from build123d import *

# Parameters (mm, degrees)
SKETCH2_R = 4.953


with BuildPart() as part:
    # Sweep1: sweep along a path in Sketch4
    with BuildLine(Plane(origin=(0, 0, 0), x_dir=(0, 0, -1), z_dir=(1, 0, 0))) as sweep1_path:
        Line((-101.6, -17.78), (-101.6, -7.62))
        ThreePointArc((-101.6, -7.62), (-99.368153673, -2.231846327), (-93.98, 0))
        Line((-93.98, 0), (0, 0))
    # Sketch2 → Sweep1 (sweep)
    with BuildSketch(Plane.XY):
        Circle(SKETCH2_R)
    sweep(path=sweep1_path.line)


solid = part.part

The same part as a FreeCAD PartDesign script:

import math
import FreeCAD as App
import Part
import Sketcher
from FreeCAD import Vector
Q = App.Units.Quantity

doc = App.newDocument("Part")
body = doc.addObject("PartDesign::Body", "Body")

# Sketch on XY plane
sketch1 = body.newObject("Sketcher::SketchObject", "Sketch")
sketch1.AttachmentSupport = (doc.getObject("XY_Plane"), [""])
sketch1.MapMode = "FlatFace"
sketch1.addGeometry(Part.Circle(Vector(0, 0, 0), Vector(0, 0, 1), 5), False)
sketch1.addConstraint(Sketcher.Constraint("Coincident", 0, 3, -1, 1))
sketch1.addConstraint(Sketcher.Constraint("Diameter", 0, Q("0.39 in")))

# Sketch on YZ plane
sketch2 = body.newObject("Sketcher::SketchObject", "Sketch001")
sketch2.AttachmentSupport = (doc.getObject("YZ_Plane"), [""])
sketch2.MapMode = "FlatFace"
sketch2.addGeometry(Part.LineSegment(Vector(-18, 102, 0), Vector(-8, 102, 0)), False)
sketch2.addGeometry(Part.ArcOfCircle(Part.Circle(Vector(-8, 94, 0), Vector(0, 0, 1), 8), math.radians(0), math.radians(90)), False)
sketch2.addGeometry(Part.LineSegment(Vector(0, 94, 0), Vector(0, 0, 0)), False)
sketch2.addConstraint(Sketcher.Constraint("Tangent", 0, 2, 1, 2))
sketch2.addConstraint(Sketcher.Constraint("Tangent", 1, 1, 2, 1))
sketch2.addConstraint(Sketcher.Constraint("Horizontal", 0))
sketch2.addConstraint(Sketcher.Constraint("Vertical", 2))
sketch2.addConstraint(Sketcher.Constraint("Coincident", 2, 2, -1, 1))
sketch2.addConstraint(Sketcher.Constraint("Radius", 1, Q("0.3 in")))
sketch2.addConstraint(Sketcher.Constraint("DistanceX", 0, 1, 0, 2, Q("0.4 in")))
sketch2.addConstraint(Sketcher.Constraint("DistanceY", 2, 2, 2, 1, Q("3.7 in")))
doc.recompute()

additivepipe = body.newObject("PartDesign::AdditivePipe", "AdditivePipe")
additivepipe.Profile = sketch1
additivepipe.Spine = (sketch2, ["Edge1", "Edge2", "Edge3"])

doc.recompute()
